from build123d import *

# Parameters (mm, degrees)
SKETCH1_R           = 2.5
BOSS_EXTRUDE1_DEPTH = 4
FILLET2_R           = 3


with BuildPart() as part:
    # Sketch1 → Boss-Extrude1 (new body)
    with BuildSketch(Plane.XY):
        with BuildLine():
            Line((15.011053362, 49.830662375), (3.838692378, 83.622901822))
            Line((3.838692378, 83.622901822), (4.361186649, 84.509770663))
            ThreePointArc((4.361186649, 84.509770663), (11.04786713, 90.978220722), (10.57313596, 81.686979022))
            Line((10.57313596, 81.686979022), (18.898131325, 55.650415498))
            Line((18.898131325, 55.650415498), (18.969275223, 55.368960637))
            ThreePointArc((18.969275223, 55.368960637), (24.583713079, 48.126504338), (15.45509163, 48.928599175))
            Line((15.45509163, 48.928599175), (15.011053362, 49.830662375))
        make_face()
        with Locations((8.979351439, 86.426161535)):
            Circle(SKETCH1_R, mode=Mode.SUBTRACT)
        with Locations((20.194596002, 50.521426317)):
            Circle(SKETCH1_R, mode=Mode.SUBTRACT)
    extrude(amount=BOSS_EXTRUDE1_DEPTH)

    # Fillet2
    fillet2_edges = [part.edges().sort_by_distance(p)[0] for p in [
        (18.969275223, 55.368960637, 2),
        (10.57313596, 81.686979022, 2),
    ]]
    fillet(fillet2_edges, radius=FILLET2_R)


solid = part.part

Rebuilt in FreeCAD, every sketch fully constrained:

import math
import FreeCAD as App
import Part
import Sketcher


def edges_at(feature, points):
    """Names of the edges that pass closest to the given points."""
    edges = feature.Shape.Edges
    near = lambda p: min(range(len(edges)), key=lambda i: edges[i].distToShape(Part.Vertex(*p))[0])
    return sorted({f"Edge{near(p) + 1}" for p in points})

doc = App.newDocument("Part")
params = doc.addObject("Spreadsheet::Sheet", "Params")
for row, (alias, value) in enumerate([
    ("sketch1_diameter", "5 mm"),
    ("sketch1_radius", "5 mm"),
    ("pad1_length", "4 mm"),
    ("fillet_radius", "3 mm"),
], start=1):
    params.set(f"A{row}", alias)
    params.set(f"B{row}", "=" + value)
    params.setAlias(f"B{row}", alias)

body = doc.addObject("PartDesign::Body", "Body")

# Sketch on XY plane
sketch1 = body.newObject("Sketcher::SketchObject", "Sketch")
sketch1.AttachmentSupport = (doc.getObject("XY_Plane"), [""])
sketch1.MapMode = "FlatFace"
sketch1.addGeometry(Part.LineSegment(App.Vector(3.84, 83.62, 0), App.Vector(15.01, 49.83, 0)), False)
sketch1.addGeometry(Part.LineSegment(App.Vector(15.01, 49.83, 0), App.Vector(15.46, 48.93, 0)), False)
sketch1.addGeometry(Part.ArcOfCircle(Part.Circle(App.Vector(20.19, 50.52, 0), App.Vector(0, 0, 1), 5), math.radians(-161), math.radians(104)), False)
sketch1.addGeometry(Part.LineSegment(App.Vector(18.97, 55.37, 0), App.Vector(18.9, 55.65, 0)), False)
sketch1.addGeometry(Part.LineSegment(App.Vector(18.9, 55.65, 0), App.Vector(10.57, 81.69, 0)), False)
sketch1.addGeometry(Part.ArcOfCircle(Part.Circle(App.Vector(8.98, 86.43, 0), App.Vector(0, 0, 1), 5), math.radians(-71), math.radians(203)), False)
sketch1.addGeometry(Part.LineSegment(App.Vector(4.36, 84.51, 0), App.Vector(3.84, 83.62, 0)), False)
sketch1.addGeometry(Part.Circle(App.Vector(20.19, 50.52, 0), App.Vector(0, 0, 1), 2.5), False)
sketch1.addGeometry(Part.Circle(App.Vector(8.98, 86.43, 0), App.Vector(0, 0, 1), 2.5), False)
sketch1.addConstraint(Sketcher.Constraint("Coincident", 0, 2, 1, 1))
sketch1.addConstraint(Sketcher.Constraint("Coincident", 1, 2, 2, 1))
sketch1.addConstraint(Sketcher.Constraint("Coincident", 2, 2, 3, 1))
sketch1.addConstraint(Sketcher.Constraint("Coincident", 3, 2, 4, 1))
sketch1.addConstraint(Sketcher.Constraint("Coincident", 4, 2, 5, 1))
sketch1.addConstraint(Sketcher.Constraint("Coincident", 5, 2, 6, 1))
sketch1.addConstraint(Sketcher.Constraint("Coincident", 6, 2, 0, 1))
sketch1.addConstraint(Sketcher.Constraint("Coincident", 7, 3, 2, 3))
sketch1.addConstraint(Sketcher.Constraint("Coincident", 8, 3, 5, 3))
sketch1.addConstraint(Sketcher.Constraint("Equal", 2, 5))
sketch1.addConstraint(Sketcher.Constraint("Equal", 7, 8))
sketch1.addConstraint(Sketcher.Constraint("Diameter", 7, 5.0))
sketch1.addConstraint(Sketcher.Constraint("Radius", 2, 5.0))
sketch1.addConstraint(Sketcher.Constraint("DistanceY", -1, 1, 1, 2, 48.928599))
sketch1.addConstraint(Sketcher.Constraint("DistanceY", -1, 1, 6, 2, 83.622902))
sketch1.addConstraint(Sketcher.Constraint("DistanceX", 8, 3, 0, 2, 6.031702))
sketch1.addConstraint(Sketcher.Constraint("DistanceY", 0, 2, 8, 3, 36.595499))
sketch1.addConstraint(Sketcher.Constraint("DistanceY", 0, 2, 2, 2, 5.538298))
sketch1.addConstraint(Sketcher.Constraint("Distance", 0, 35.59125))
sketch1.addConstraint(Sketcher.Constraint("Distance", 1, 1.005429))
sketch1.addConstraint(Sketcher.Constraint("Distance", 4, 27.335109))
sketch1.addConstraint(Sketcher.Constraint("DistanceX", -1, 1, 5, 3, 8.979351))
sketch1.addConstraint(Sketcher.Constraint("DistanceY", -1, 1, 5, 3, 86.426162))
sketch1.addConstraint(Sketcher.Constraint("DistanceX", -1, 1, 3, 2, 18.898131))
sketch1.addConstraint(Sketcher.Constraint("DistanceY", -1, 1, 4, 2, 81.686979))
sketch1.addConstraint(Sketcher.Constraint("DistanceY", -1, 1, 5, 2, 84.509771))
sketch1.addConstraint(Sketcher.Constraint("DistanceX", 2, 2, 2, 3, 1.225321))
sketch1.setExpression("Constraints[11]", "Params.sketch1_diameter")
sketch1.setExpression("Constraints[12]", "Params.sketch1_radius")
pad1 = body.newObject("PartDesign::Pad", "Pad")
pad1.Profile = sketch1
pad1.setExpression("Length", "Params.pad1_length")
doc.recompute()

fillet = body.newObject("PartDesign::Fillet", "Fillet")
fillet.Base = (pad1, edges_at(pad1, [(18.969, 55.369, 2), (10.573, 81.687, 2)]))
fillet.setExpression("Radius", "Params.fillet_radius")

doc.recompute()
